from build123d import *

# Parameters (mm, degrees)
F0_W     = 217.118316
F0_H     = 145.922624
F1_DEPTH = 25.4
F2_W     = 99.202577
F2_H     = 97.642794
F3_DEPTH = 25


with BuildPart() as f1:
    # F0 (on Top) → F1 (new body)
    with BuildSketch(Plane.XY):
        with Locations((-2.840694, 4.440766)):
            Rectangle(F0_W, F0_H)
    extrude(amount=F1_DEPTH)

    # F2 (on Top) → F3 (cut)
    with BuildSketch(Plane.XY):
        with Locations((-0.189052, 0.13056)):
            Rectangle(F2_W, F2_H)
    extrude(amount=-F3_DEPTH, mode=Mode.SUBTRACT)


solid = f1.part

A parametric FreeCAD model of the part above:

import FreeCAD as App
import Part
import Sketcher

doc = App.newDocument("Part")
body = doc.addObject("PartDesign::Body", "Body")

# Sketch on XY plane
sketch1 = doc.addObject("Sketcher::SketchObject", "Sketch")
body.addObject(sketch1)
sketch1.AttachmentSupport = (doc.XY_Plane, [""])
sketch1.MapMode = "FlatFace"
sketch1.addGeometry([
    Part.LineSegment(App.Vector(-111.399852, 77.402078, 0), App.Vector(-111.399852, -68.520546, 0)),
    Part.LineSegment(App.Vector(-111.399852, -68.520546, 0), App.Vector(105.718464, -68.520546, 0)),
    Part.LineSegment(App.Vector(105.718464, -68.520546, 0), App.Vector(105.718464, 77.402078, 0)),
    Part.LineSegment(App.Vector(105.718464, 77.402078, 0), App.Vector(-111.399852, 77.402078, 0)),
], False)
sketch1.addConstraint([
    Sketcher.Constraint("Coincident", 0, 2, 1, 1),
    Sketcher.Constraint("Coincident", 1, 2, 2, 1),
    Sketcher.Constraint("Coincident", 2, 2, 3, 1),
    Sketcher.Constraint("Coincident", 3, 2, 0, 1),
    Sketcher.Constraint("Vertical", 0),
    Sketcher.Constraint("Horizontal", 1),
    Sketcher.Constraint("Vertical", 2),
    Sketcher.Constraint("Horizontal", 3),
    Sketcher.Constraint("DistanceX", 1, 1, 1, 2, 217.118316),
    Sketcher.Constraint("DistanceY", 0, 2, 0, 1, 145.922624),
    Sketcher.Constraint("DistanceX", 0, 2, -1, 1, 111.399852),
    Sketcher.Constraint("DistanceY", -1, 1, 2, 2, 77.402078),
])
pad1 = doc.addObject("PartDesign::Pad", "Pad")
body.addObject(pad1)
pad1.Profile = sketch1
pad1.Length = 25.4

# Sketch on XY plane
sketch2 = doc.addObject("Sketcher::SketchObject", "Sketch001")
body.addObject(sketch2)
sketch2.AttachmentSupport = (doc.XY_Plane, [""])
sketch2.MapMode = "FlatFace"
sketch2.addGeometry([
    Part.LineSegment(App.Vector(-49.79034, 48.951957, 0), App.Vector(-49.79034, -48.690837, 0)),
    Part.LineSegment(App.Vector(-49.79034, -48.690837, 0), App.Vector(49.412236, -48.690837, 0)),
    Part.LineSegment(App.Vector(49.412236, -48.690837, 0), App.Vector(49.412236, 48.951957, 0)),
    Part.LineSegment(App.Vector(49.412236, 48.951957, 0), App.Vector(-49.79034, 48.951957, 0)),
], False)
sketch2.addConstraint([
    Sketcher.Constraint("Coincident", 0, 2, 1, 1),
    Sketcher.Constraint("Coincident", 1, 2, 2, 1),
    Sketcher.Constraint("Coincident", 2, 2, 3, 1),
    Sketcher.Constraint("Coincident", 3, 2, 0, 1),
    Sketcher.Constraint("Vertical", 0),
    Sketcher.Constraint("Horizontal", 1),
    Sketcher.Constraint("Vertical", 2),
    Sketcher.Constraint("Horizontal", 3),
    Sketcher.Constraint("DistanceX", 1, 1, 1, 2, 99.202577),
    Sketcher.Constraint("DistanceY", 0, 2, 0, 1, 97.642794),
    Sketcher.Constraint("DistanceX", 0, 2, -1, 1, 49.79034),
    Sketcher.Constraint("DistanceY", 0, 2, -1, 1, 48.690837),
])
pocket1 = doc.addObject("PartDesign::Pocket", "Pocket")
body.addObject(pocket1)
pocket1.Profile = sketch2
pocket1.Length = 25

doc.recompute()
